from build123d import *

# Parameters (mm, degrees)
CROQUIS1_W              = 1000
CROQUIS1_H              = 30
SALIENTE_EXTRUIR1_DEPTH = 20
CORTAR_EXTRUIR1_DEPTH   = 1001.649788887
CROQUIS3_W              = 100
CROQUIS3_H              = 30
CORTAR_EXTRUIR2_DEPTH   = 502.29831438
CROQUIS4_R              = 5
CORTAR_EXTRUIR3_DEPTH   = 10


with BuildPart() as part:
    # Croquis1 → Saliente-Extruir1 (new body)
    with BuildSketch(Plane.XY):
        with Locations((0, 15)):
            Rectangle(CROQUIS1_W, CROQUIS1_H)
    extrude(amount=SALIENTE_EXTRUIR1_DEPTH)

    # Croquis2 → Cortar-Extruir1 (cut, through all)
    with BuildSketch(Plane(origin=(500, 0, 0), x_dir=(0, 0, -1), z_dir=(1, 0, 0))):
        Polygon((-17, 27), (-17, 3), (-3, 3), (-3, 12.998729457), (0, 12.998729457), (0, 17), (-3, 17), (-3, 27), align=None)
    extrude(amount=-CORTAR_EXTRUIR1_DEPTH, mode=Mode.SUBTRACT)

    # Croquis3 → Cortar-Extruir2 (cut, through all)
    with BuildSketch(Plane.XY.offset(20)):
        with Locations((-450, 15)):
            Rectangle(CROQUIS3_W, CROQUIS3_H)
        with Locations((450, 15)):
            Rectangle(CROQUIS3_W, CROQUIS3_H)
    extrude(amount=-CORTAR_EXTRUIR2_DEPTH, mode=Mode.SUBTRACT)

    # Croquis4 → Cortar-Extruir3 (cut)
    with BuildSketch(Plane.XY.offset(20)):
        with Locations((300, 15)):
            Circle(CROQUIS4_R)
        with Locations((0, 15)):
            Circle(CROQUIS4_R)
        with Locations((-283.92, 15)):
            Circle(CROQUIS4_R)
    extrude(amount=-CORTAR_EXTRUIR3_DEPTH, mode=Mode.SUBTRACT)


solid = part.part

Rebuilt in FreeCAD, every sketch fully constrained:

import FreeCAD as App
import Part
import Sketcher
from FreeCAD import Vector
Q = App.Units.Quantity

doc = App.newDocument("Part")
params = doc.addObject("Spreadsheet::Sheet", "Params")
for row, (alias, value) in enumerate([
    ("sketch1_width", "1000 mm"),
    ("sketch1_height", "30 mm"),
    ("pad1_length", "20 mm"),
    ("sketch2_width", "24 mm"),
    ("sketch2_width2", "10 mm"),
    ("sketch2_height", "14 mm"),
    ("sketch2_height2", "3 mm"),
    ("sketch3_width", "100 mm"),
    ("sketch3_height", "30 mm"),
    ("sketch4_diameter", "10 mm"),
    ("pocket3_length", "10 mm"),
], start=1):
    params.set(f"A{row}", alias)
    params.set(f"B{row}", "=" + value)
    params.setAlias(f"B{row}", alias)

body = doc.addObject("PartDesign::Body", "Body")

sketch1 = doc.addObject("Sketcher::SketchObject", "Sketch")
body.addObject(sketch1)
sketch1.AttachmentSupport = (doc.XY_Plane, [""])
sketch1.MapMode = "FlatFace"
sketch1.addGeometry([
    Part.LineSegment(Vector(-500, 30, 0), Vector(-500, 0, 0)),
    Part.LineSegment(Vector(-500, 0, 0), Vector(500, 0, 0)),
    Part.LineSegment(Vector(500, 0, 0), Vector(500, 30, 0)),
    Part.LineSegment(Vector(500, 30, 0), Vector(-500, 30, 0)),
], False)
sketch1.addConstraint([
    Sketcher.Constraint("Coincident", 0, 2, 1, 1),
    Sketcher.Constraint("Coincident", 1, 2, 2, 1),
    Sketcher.Constraint("Coincident", 2, 2, 3, 1),
    Sketcher.Constraint("Coincident", 3, 2, 0, 1),
    Sketcher.Constraint("Vertical", 0),
    Sketcher.Constraint("Horizontal", 1),
    Sketcher.Constraint("Vertical", 2),
    Sketcher.Constraint("Horizontal", 3),
    Sketcher.Constraint("Symmetric", 0, 2, 1, 2, -1, 1),
    Sketcher.Constraint("DistanceX", 1, 1, 1, 2, Q("1000 mm")),
    Sketcher.Constraint("DistanceY", 0, 2, 0, 1, Q("30 mm")),
])
sketch1.setExpression("Constraints[9]", "Params.sketch1_width")
sketch1.setExpression("Constraints[10]", "Params.sketch1_height")
pad1 = doc.addObject("PartDesign::Pad", "Pad")
body.addObject(pad1)
pad1.Profile = sketch1
pad1.setExpression("Length", "Params.pad1_length")

sketch2 = doc.addObject("Sketcher::SketchObject", "Sketch001")
body.addObject(sketch2)
sketch2.AttachmentSupport = (doc.YZ_Plane, [""])
sketch2.MapMode = "FlatFace"
sketch2.AttachmentOffset = App.Placement(Vector(0, 0, 500), App.Rotation())
sketch2.addGeometry([
    Part.LineSegment(Vector(27, 17, 0), Vector(3, 17, 0)),
    Part.LineSegment(Vector(3, 17, 0), Vector(3, 3, 0)),
    Part.LineSegment(Vector(3, 3, 0), Vector(13, 3, 0)),
    Part.LineSegment(Vector(13, 3, 0), Vector(13, 0, 0)),
    Part.LineSegment(Vector(13, 0, 0), Vector(17, 0, 0)),
    Part.LineSegment(Vector(17, 0, 0), Vector(17, 3, 0)),
    Part.LineSegment(Vector(17, 3, 0), Vector(27, 3, 0)),
    Part.LineSegment(Vector(27, 3, 0), Vector(27, 17, 0)),
], False)
sketch2.addConstraint([
    Sketcher.Constraint("Coincident", 0, 2, 1, 1),
    Sketcher.Constraint("Coincident", 1, 2, 2, 1),
    Sketcher.Constraint("Coincident", 2, 2, 3, 1),
    Sketcher.Constraint("Coincident", 3, 2, 4, 1),
    Sketcher.Constraint("Coincident", 4, 2, 5, 1),
    Sketcher.Constraint("Coincident", 5, 2, 6, 1),
    Sketcher.Constraint("Coincident", 6, 2, 7, 1),
    Sketcher.Constraint("Coincident", 7, 2, 0, 1),
    Sketcher.Constraint("Horizontal", 0),
    Sketcher.Constraint("Vertical", 1),
    Sketcher.Constraint("Horizontal", 2),
    Sketcher.Constraint("Vertical", 3),
    Sketcher.Constraint("Horizontal", 4),
    Sketcher.Constraint("Vertical", 5),
    Sketcher.Constraint("Horizontal", 6),
    Sketcher.Constraint("Vertical", 7),
    Sketcher.Constraint("PointOnObject", 3, 2, -1),
    Sketcher.Constraint("Horizontal", 2, 2, 5, 2),
    Sketcher.Constraint("DistanceX", 0, 2, 0, 1, Q("24 mm")),
    Sketcher.Constraint("DistanceX", 6, 1, 6, 2, Q("10 mm")),
    Sketcher.Constraint("DistanceY", 1, 2, 1, 1, Q("14 mm")),
    Sketcher.Constraint("DistanceY", 3, 2, 3, 1, Q("3 mm")),
    Sketcher.Constraint("DistanceX", -1, 1, 0, 2, Q("3 mm")),
    Sketcher.Constraint("DistanceX", 2, 1, 2, 2, Q("9.998729 mm")),
])
sketch2.setExpression("Constraints[18]", "Params.sketch2_width")
sketch2.setExpression("Constraints[19]", "Params.sketch2_width2")
sketch2.setExpression("Constraints[20]", "Params.sketch2_height")
sketch2.setExpression("Constraints[21]", "Params.sketch2_height2")
pocket1 = doc.addObject("PartDesign::Pocket", "Pocket")
body.addObject(pocket1)
pocket1.Profile = sketch2
pocket1.Type = "ThroughAll"

sketch3 = doc.addObject("Sketcher::SketchObject", "Sketch002")
body.addObject(sketch3)
sketch3.AttachmentSupport = (doc.XY_Plane, [""])
sketch3.MapMode = "FlatFace"
sketch3.AttachmentOffset = App.Placement(Vector(0, 0, 20), App.Rotation())
sketch3.addGeometry([
    Part.LineSegment(Vector(-500, 30, 0), Vector(-500, 0, 0)),
    Part.LineSegment(Vector(-500, 0, 0), Vector(-400, 0, 0)),
    Part.LineSegment(Vector(-400, 0, 0), Vector(-400, 30, 0)),
    Part.LineSegment(Vector(-400, 30, 0), Vector(-500, 30, 0)),
    Part.LineSegment(Vector(400, 30, 0), Vector(400, 0, 0)),
    Part.LineSegment(Vector(400, 0, 0), Vector(500, 0, 0)),
    Part.LineSegment(Vector(500, 0, 0), Vector(500, 30, 0)),
    Part.LineSegment(Vector(500, 30, 0), Vector(400, 30, 0)),
], False)
sketch3.addConstraint([
    Sketcher.Constraint("Coincident", 0, 2, 1, 1),
    Sketcher.Constraint("Coincident", 1, 2, 2, 1),
    Sketcher.Constraint("Coincident", 2, 2, 3, 1),
    Sketcher.Constraint("Coincident", 3, 2, 0, 1),
    Sketcher.Constraint("Coincident", 4, 2, 5, 1),
    Sketcher.Constraint("Coincident", 5, 2, 6, 1),
    Sketcher.Constraint("Coincident", 6, 2, 7, 1),
    Sketcher.Constraint("Coincident", 7, 2, 4, 1),
    Sketcher.Constraint("Vertical", 0),
    Sketcher.Constraint("Horizontal", 1),
    Sketcher.Constraint("Vertical", 2),
    Sketcher.Constraint("Horizontal", 3),
    Sketcher.Constraint("Vertical", 4),
    Sketcher.Constraint("Horizontal", 5),
    Sketcher.Constraint("Vertical", 6),
    Sketcher.Constraint("Horizontal", 7),
    Sketcher.Constraint("Symmetric", 1, 2, 4, 2, -1, 1),
    Sketcher.Constraint("Symmetric", 0, 2, 5, 2, -2),
    Sketcher.Constraint("Horizontal", 3, 2, 6, 2),
    Sketcher.Constraint("DistanceX", 1, 1, 1, 2, Q("100 mm")),
    Sketcher.Constraint("DistanceY", 0, 2, 0, 1, Q("30 mm")),
    Sketcher.Constraint("DistanceX", 0, 2, -1, 1, Q("500 mm")),
])
sketch3.setExpression("Constraints[19]", "Params.sketch3_width")
sketch3.setExpression("Constraints[20]", "Params.sketch3_height")
pocket2 = doc.addObject("PartDesign::Pocket", "Pocket001")
body.addObject(pocket2)
pocket2.Profile = sketch3
pocket2.Type = "ThroughAll"

sketch4 = doc.addObject("Sketcher::SketchObject", "Sketch003")
body.addObject(sketch4)
sketch4.AttachmentSupport = (doc.XY_Plane, [""])
sketch4.MapMode = "FlatFace"
sketch4.AttachmentOffset = App.Placement(Vector(0, 0, 20), App.Rotation())
sketch4.addGeometry([
    Part.Circle(Vector(300, 15, 0), Vector(0, 0, 1), 5),
    Part.Circle(Vector(0, 15, 0), Vector(0, 0, 1), 5),
    Part.Circle(Vector(-284, 15, 0), Vector(0, 0, 1), 5),
], False)
sketch4.addConstraint([
    Sketcher.Constraint("Equal", 0, 1),
    Sketcher.Constraint("Equal", 1, 2),
    Sketcher.Constraint("PointOnObject", 1, 3, -2),
    Sketcher.Constraint("Horizontal", 0, 3, 1, 3),
    Sketcher.Constraint("Horizontal", 1, 3, 2, 3),
    Sketcher.Constraint("Diameter", 0, Q("10 mm")),
    Sketcher.Constraint("DistanceX", -1, 1, 0, 3, Q("300 mm")),
    Sketcher.Constraint("DistanceY", -1, 1, 0, 3, Q("15 mm")),
    Sketcher.Constraint("DistanceX", 2, 3, -1, 1, Q("283.92 mm")),
])
sketch4.setExpression("Constraints[5]", "Params.sketch4_diameter")
pocket3 = doc.addObject("PartDesign::Pocket", "Pocket002")
body.addObject(pocket3)
pocket3.Profile = sketch4
pocket3.setExpression("Length", "Params.pocket3_length")

doc.recompute()
